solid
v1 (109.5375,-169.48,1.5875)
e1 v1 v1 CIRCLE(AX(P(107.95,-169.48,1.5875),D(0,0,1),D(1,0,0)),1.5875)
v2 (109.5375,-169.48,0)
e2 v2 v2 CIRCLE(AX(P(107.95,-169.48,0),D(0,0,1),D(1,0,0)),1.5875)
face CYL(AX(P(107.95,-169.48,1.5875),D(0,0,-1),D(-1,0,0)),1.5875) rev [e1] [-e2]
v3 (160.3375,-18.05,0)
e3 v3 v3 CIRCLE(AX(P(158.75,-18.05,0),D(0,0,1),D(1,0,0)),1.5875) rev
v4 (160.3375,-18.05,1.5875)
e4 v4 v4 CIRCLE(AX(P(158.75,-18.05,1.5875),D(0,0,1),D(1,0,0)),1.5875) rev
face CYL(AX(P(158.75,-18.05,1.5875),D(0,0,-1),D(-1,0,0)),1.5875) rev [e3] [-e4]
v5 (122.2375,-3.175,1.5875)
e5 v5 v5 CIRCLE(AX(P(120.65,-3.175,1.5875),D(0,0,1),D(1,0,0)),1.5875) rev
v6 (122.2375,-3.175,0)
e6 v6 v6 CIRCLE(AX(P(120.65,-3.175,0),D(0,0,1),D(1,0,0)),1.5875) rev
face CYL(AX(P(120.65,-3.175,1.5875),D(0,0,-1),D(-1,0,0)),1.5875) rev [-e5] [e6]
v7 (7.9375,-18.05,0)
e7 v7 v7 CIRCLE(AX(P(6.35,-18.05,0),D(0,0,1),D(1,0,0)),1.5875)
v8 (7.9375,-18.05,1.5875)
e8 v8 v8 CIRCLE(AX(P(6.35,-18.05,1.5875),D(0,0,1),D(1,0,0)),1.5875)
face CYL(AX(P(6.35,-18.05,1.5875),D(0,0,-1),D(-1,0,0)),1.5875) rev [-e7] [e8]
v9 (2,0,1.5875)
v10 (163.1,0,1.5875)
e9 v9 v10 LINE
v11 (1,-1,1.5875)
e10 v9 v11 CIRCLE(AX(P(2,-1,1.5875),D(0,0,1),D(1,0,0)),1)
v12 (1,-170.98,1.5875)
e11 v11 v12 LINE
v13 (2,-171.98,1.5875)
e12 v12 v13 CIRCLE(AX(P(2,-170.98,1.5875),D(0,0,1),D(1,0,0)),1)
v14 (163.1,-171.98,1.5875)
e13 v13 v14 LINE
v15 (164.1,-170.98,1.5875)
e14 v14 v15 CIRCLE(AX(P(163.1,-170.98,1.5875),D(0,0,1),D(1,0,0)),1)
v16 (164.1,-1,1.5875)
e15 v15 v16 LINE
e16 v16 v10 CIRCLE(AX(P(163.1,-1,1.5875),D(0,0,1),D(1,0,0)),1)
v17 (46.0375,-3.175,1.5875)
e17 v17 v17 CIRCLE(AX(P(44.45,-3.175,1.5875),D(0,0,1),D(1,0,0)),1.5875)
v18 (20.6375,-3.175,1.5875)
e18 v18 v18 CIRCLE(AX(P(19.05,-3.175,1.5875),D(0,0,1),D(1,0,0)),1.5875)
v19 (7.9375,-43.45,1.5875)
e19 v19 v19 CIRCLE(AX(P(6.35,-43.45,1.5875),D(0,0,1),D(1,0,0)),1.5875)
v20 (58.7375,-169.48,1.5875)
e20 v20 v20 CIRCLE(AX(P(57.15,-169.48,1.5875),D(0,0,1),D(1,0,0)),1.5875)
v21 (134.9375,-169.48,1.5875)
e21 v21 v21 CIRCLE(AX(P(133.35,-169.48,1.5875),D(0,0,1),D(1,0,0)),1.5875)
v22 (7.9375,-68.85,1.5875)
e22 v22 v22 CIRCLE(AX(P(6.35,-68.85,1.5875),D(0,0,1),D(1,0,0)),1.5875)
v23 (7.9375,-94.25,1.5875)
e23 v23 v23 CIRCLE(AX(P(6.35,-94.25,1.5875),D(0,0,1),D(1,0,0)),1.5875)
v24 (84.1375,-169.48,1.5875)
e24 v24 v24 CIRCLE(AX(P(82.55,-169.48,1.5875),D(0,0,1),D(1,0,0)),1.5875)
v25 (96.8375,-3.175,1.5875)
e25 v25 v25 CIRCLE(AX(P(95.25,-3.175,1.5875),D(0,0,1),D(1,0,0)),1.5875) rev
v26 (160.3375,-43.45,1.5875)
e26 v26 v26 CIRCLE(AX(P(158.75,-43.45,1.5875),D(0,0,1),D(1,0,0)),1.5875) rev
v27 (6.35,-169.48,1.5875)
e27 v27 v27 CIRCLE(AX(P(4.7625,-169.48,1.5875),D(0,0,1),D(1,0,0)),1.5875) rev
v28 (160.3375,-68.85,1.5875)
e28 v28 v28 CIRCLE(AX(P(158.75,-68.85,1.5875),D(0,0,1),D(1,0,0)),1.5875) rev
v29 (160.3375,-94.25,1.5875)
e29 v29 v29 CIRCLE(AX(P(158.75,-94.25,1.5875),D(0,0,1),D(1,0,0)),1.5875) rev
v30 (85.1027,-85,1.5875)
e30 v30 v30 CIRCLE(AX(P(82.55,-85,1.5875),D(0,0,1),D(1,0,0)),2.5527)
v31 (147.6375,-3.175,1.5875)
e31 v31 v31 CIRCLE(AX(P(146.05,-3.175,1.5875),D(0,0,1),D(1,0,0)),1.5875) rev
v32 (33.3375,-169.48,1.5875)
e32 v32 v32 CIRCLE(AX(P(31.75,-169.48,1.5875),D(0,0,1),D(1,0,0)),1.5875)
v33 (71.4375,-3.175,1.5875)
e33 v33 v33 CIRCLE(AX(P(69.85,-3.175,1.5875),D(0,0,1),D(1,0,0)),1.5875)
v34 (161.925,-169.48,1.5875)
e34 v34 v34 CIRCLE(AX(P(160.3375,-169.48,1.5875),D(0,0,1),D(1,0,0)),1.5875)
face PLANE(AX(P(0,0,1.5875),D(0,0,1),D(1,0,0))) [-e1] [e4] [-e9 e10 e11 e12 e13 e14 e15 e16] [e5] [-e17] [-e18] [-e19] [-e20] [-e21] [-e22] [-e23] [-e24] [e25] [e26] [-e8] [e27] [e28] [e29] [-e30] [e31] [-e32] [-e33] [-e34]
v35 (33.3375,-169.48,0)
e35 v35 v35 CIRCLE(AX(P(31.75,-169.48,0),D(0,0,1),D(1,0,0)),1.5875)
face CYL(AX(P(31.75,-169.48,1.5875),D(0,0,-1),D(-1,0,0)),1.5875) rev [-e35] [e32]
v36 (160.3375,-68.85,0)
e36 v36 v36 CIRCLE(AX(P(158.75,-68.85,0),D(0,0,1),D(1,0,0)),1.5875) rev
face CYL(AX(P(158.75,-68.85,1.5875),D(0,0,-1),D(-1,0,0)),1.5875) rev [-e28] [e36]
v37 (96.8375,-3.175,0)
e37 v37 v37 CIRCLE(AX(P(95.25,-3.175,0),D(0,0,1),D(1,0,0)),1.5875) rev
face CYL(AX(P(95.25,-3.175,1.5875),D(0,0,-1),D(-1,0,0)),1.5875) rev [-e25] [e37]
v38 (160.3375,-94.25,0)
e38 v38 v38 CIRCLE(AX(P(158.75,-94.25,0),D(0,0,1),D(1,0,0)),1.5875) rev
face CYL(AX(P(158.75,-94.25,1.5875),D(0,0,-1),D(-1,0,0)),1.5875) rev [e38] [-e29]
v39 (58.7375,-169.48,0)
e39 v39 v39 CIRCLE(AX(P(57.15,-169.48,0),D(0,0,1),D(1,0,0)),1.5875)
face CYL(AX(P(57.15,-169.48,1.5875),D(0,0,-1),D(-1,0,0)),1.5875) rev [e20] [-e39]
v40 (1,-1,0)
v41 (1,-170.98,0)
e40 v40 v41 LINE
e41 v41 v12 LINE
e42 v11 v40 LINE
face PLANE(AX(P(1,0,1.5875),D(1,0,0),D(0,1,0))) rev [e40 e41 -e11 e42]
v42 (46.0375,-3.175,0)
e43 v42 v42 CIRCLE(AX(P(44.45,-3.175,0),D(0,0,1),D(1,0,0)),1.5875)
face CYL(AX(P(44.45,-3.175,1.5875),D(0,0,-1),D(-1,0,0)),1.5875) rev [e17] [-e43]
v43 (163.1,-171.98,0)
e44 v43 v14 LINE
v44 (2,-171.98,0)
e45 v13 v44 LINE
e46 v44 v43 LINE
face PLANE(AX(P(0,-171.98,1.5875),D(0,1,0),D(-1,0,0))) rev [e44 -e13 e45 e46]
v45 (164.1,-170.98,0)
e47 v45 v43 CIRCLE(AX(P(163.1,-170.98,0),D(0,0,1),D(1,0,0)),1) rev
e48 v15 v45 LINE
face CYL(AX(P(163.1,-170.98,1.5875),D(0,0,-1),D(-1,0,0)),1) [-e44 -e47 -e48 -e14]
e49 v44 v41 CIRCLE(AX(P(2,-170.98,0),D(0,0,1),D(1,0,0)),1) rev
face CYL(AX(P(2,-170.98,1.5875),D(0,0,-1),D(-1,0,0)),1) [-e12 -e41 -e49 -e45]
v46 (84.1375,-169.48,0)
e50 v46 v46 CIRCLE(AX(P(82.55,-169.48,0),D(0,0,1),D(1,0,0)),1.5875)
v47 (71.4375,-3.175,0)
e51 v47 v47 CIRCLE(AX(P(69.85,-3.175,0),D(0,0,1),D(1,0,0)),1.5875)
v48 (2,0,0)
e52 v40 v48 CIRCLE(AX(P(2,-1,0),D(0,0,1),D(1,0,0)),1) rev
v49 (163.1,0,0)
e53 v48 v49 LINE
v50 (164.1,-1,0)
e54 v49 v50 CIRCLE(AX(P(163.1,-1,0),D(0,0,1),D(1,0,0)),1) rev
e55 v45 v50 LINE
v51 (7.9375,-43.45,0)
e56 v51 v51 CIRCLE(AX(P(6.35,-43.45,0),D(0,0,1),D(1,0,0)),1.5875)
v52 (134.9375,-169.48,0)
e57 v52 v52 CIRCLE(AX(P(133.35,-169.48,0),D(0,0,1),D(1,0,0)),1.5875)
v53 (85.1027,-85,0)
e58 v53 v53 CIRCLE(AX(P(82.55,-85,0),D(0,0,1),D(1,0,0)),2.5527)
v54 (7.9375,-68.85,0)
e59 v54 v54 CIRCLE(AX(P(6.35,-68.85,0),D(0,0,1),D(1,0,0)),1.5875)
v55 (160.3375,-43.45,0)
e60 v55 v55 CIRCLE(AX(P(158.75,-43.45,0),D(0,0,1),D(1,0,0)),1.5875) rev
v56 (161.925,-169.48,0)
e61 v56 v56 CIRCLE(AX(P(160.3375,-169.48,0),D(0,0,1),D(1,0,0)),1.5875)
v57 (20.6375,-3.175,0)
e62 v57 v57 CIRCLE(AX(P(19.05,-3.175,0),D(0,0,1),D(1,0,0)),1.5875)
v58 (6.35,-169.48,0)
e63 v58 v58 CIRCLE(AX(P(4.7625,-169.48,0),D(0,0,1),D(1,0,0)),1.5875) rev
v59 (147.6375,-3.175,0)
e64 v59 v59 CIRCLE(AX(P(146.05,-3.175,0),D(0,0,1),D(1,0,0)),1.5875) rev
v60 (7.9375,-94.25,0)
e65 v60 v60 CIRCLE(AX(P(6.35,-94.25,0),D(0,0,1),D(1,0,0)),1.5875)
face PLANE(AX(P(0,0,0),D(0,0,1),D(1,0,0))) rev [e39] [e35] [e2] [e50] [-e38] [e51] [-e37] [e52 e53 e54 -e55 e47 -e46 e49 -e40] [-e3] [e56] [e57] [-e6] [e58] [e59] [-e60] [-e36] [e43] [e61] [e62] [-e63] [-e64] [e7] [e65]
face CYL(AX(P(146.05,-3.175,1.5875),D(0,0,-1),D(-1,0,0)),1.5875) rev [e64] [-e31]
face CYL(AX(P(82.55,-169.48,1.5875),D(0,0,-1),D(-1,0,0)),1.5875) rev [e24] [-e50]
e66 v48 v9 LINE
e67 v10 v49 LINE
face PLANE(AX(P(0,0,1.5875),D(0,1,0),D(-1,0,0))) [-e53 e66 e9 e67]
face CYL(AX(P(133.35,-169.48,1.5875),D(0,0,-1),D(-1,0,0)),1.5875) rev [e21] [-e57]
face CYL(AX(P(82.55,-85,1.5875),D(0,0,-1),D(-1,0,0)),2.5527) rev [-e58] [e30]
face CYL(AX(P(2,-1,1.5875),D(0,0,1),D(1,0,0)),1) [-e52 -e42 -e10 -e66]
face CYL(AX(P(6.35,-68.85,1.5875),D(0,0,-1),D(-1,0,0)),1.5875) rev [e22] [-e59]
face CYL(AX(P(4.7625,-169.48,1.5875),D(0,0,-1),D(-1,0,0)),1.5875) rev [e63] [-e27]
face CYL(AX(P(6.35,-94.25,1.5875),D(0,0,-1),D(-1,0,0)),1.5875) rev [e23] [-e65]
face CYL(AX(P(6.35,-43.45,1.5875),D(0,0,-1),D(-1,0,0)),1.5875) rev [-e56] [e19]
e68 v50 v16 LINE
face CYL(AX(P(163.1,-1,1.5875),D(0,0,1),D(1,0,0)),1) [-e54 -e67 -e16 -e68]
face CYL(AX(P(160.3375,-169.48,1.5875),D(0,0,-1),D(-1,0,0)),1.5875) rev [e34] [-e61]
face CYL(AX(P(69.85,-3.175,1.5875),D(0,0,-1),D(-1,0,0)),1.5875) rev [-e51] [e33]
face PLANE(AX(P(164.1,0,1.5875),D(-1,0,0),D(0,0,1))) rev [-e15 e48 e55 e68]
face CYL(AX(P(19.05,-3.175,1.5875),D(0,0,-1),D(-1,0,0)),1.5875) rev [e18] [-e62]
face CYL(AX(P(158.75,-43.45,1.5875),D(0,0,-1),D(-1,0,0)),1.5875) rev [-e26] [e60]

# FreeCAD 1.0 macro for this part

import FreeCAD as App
import Part
import Sketcher

V = App.Vector
Q = App.Units.Quantity


def edges_at(feature, points):
    """Names of the edges that pass closest to the given points."""
    edges = feature.Shape.Edges
    near = lambda p: min(range(len(edges)), key=lambda i: edges[i].distToShape(Part.Vertex(*p))[0])
    return sorted({f"Edge{near(p) + 1}" for p in points})

doc = App.newDocument("Part")
body = doc.addObject("PartDesign::Body", "Body")

sketch1 = body.newObject("Sketcher::SketchObject", "Sketch")
sketch1.AttachmentSupport = (doc.getObject("XY_Plane"), [""])
sketch1.MapMode = "FlatFace"
sketch1.addGeometry(Part.LineSegment(V(1, 0, 0), V(1, -172, 0)), False)
sketch1.addGeometry(Part.LineSegment(V(1, -172, 0), V(164.1, -172, 0)), False)
sketch1.addGeometry(Part.LineSegment(V(164.1, -172, 0), V(164.1, 0, 0)), False)
sketch1.addGeometry(Part.LineSegment(V(164.1, 0, 0), V(1, 0, 0)), False)
sketch1.addGeometry(Part.Circle(V(4.8, -169.5, 0), V(0, 0, 1), 1.6), False)
sketch1.addGeometry(Part.Circle(V(31.8, -169.5, 0), V(0, 0, 1), 1.6), False)
sketch1.addGeometry(Part.Circle(V(57.1, -169.5, 0), V(0, 0, 1), 1.6), False)
sketch1.addGeometry(Part.Circle(V(6.3, -94.2, 0), V(0, 0, 1), 1.6), False)
sketch1.addGeometry(Part.Circle(V(82.5, -169.5, 0), V(0, 0, 1), 1.6), False)
sketch1.addGeometry(Part.Circle(V(108, -169.5, 0), V(0, 0, 1), 1.6), False)
sketch1.addGeometry(Part.Circle(V(133.3, -169.5, 0), V(0, 0, 1), 1.6), False)
sketch1.addGeometry(Part.Circle(V(160.3, -169.5, 0), V(0, 0, 1), 1.6), False)
sketch1.addGeometry(Part.Circle(V(158.8, -94.2, 0), V(0, 0, 1), 1.6), False)
sketch1.addGeometry(Part.Circle(V(6.3, -68.8, 0), V(0, 0, 1), 1.6), False)
sketch1.addGeometry(Part.Circle(V(6.3, -43.5, 0), V(0, 0, 1), 1.6), False)
sketch1.addGeometry(Part.Circle(V(6.3, -18.1, 0), V(0, 0, 1), 1.6), False)
sketch1.addGeometry(Part.Circle(V(19.1, -3.2, 0), V(0, 0, 1), 1.6), False)
sketch1.addGeometry(Part.Circle(V(44.5, -3.2, 0), V(0, 0, 1), 1.6), False)
sketch1.addGeometry(Part.Circle(V(69.8, -3.2, 0), V(0, 0, 1), 1.6), False)
sketch1.addGeometry(Part.Circle(V(82.5, -85, 0), V(0, 0, 1), 2.6), False)
sketch1.addGeometry(Part.Circle(V(158.8, -68.8, 0), V(0, 0, 1), 1.6), False)
sketch1.addGeometry(Part.Circle(V(95.2, -3.2, 0), V(0, 0, 1), 1.6), False)
sketch1.addGeometry(Part.Circle(V(120.7, -3.2, 0), V(0, 0, 1), 1.6), False)
sketch1.addGeometry(Part.Circle(V(158.8, -43.5, 0), V(0, 0, 1), 1.6), False)
sketch1.addGeometry(Part.Circle(V(158.8, -18.1, 0), V(0, 0, 1), 1.6), False)
sketch1.addGeometry(Part.Circle(V(146.1, -3.2, 0), V(0, 0, 1), 1.6), False)
sketch1.addConstraint(Sketcher.Constraint("Coincident", 0, 2, 1, 1))
sketch1.addConstraint(Sketcher.Constraint("Coincident", 1, 2, 2, 1))
sketch1.addConstraint(Sketcher.Constraint("Coincident", 2, 2, 3, 1))
sketch1.addConstraint(Sketcher.Constraint("Coincident", 3, 2, 0, 1))
sketch1.addConstraint(Sketcher.Constraint("Vertical", 0))
sketch1.addConstraint(Sketcher.Constraint("Horizontal", 1))
sketch1.addConstraint(Sketcher.Constraint("Vertical", 2))
sketch1.addConstraint(Sketcher.Constraint("Horizontal", 3))
sketch1.addConstraint(Sketcher.Constraint("Equal", 4, 5))
sketch1.addConstraint(Sketcher.Constraint("Equal", 5, 6))
sketch1.addConstraint(Sketcher.Constraint("Equal", 6, 7))
sketch1.addConstraint(Sketcher.Constraint("Equal", 7, 8))
sketch1.addConstraint(Sketcher.Constraint("Equal", 8, 9))
sketch1.addConstraint(Sketcher.Constraint("Equal", 9, 10))
sketch1.addConstraint(Sketcher.Constraint("Equal", 10, 11))
sketch1.addConstraint(Sketcher.Constraint("Equal", 11, 12))
sketch1.addConstraint(Sketcher.Constraint("Equal", 12, 13))
sketch1.addConstraint(Sketcher.Constraint("Equal", 13, 14))
sketch1.addConstraint(Sketcher.Constraint("Equal", 14, 15))
sketch1.addConstraint(Sketcher.Constraint("Equal", 15, 16))
sketch1.addConstraint(Sketcher.Constraint("Equal", 16, 17))
sketch1.addConstraint(Sketcher.Constraint("Equal", 17, 18))
sketch1.addConstraint(Sketcher.Constraint("Equal", 18, 20))
sketch1.addConstraint(Sketcher.Constraint("Equal", 20, 21))
sketch1.addConstraint(Sketcher.Constraint("Equal", 21, 22))
sketch1.addConstraint(Sketcher.Constraint("Equal", 22, 23))
sketch1.addConstraint(Sketcher.Constraint("Equal", 23, 24))
sketch1.addConstraint(Sketcher.Constraint("Equal", 24, 25))
sketch1.addConstraint(Sketcher.Constraint("PointOnObject", 2, 2, -1))
sketch1.addConstraint(Sketcher.Constraint("Horizontal", 4, 3, 5, 3))
sketch1.addConstraint(Sketcher.Constraint("Horizontal", 5, 3, 6, 3))
sketch1.addConstraint(Sketcher.Constraint("Horizontal", 6, 3, 8, 3))
sketch1.addConstraint(Sketcher.Constraint("Horizontal", 8, 3, 9, 3))
sketch1.addConstraint(Sketcher.Constraint("Horizontal", 9, 3, 10, 3))
sketch1.addConstraint(Sketcher.Constraint("Horizontal", 10, 3, 11, 3))
sketch1.addConstraint(Sketcher.Constraint("Horizontal", 7, 3, 12, 3))
sketch1.addConstraint(Sketcher.Constraint("Horizontal", 16, 3, 17, 3))
sketch1.addConstraint(Sketcher.Constraint("Horizontal", 17, 3, 18, 3))
sketch1.addConstraint(Sketcher.Constraint("Horizontal", 13, 3, 20, 3))
sketch1.addConstraint(Sketcher.Constraint("Horizontal", 18, 3, 21, 3))
sketch1.addConstraint(Sketcher.Constraint("Horizontal", 21, 3, 22, 3))
sketch1.addConstraint(Sketcher.Constraint("Horizontal", 14, 3, 23, 3))
sketch1.addConstraint(Sketcher.Constraint("Horizontal", 15, 3, 24, 3))
sketch1.addConstraint(Sketcher.Constraint("Horizontal", 22, 3, 25, 3))
sketch1.addConstraint(Sketcher.Constraint("Vertical", 7, 3, 13, 3))
sketch1.addConstraint(Sketcher.Constraint("Vertical", 13, 3, 14, 3))
sketch1.addConstraint(Sketcher.Constraint("Vertical", 14, 3, 15, 3))
sketch1.addConstraint(Sketcher.Constraint("Vertical", 8, 3, 19, 3))
sketch1.addConstraint(Sketcher.Constraint("Vertical", 12, 3, 20, 3))
sketch1.addConstraint(Sketcher.Constraint("Vertical", 20, 3, 23, 3))
sketch1.addConstraint(Sketcher.Constraint("Vertical", 23, 3, 24, 3))
sketch1.addConstraint(Sketcher.Constraint("Diameter", 4, Q("0.125 in")))
sketch1.addConstraint(Sketcher.Constraint("Diameter", 19, Q("0.201 in")))
sketch1.addConstraint(Sketcher.Constraint("DistanceX", 5, 3, 6, 3, Q("1 in")))
sketch1.addConstraint(Sketcher.Constraint("DistanceX", 7, 3, 5, 3, Q("1 in")))
sketch1.addConstraint(Sketcher.Constraint("DistanceX", 6, 3, 8, 3, Q("1 in")))
sketch1.addConstraint(Sketcher.Constraint("DistanceX", 8, 3, 9, 3, Q("1 in")))
sketch1.addConstraint(Sketcher.Constraint("DistanceX", 9, 3, 10, 3, Q("1 in")))
sketch1.addConstraint(Sketcher.Constraint("DistanceX", 10, 3, 12, 3, Q("1 in")))
sketch1.addConstraint(Sketcher.Constraint("DistanceY", 7, 3, 13, 3, Q("1 in")))
sketch1.addConstraint(Sketcher.Constraint("DistanceY", 13, 3, 14, 3, Q("1 in")))
sketch1.addConstraint(Sketcher.Constraint("DistanceY", 14, 3, 15, 3, Q("1 in")))
sketch1.addConstraint(Sketcher.Constraint("DistanceX", 16, 3, 17, 3, Q("1 in")))
sketch1.addConstraint(Sketcher.Constraint("DistanceX", 17, 3, 18, 3, Q("1 in")))
sketch1.addConstraint(Sketcher.Constraint("DistanceX", 18, 3, 21, 3, Q("1 in")))
sketch1.addConstraint(Sketcher.Constraint("DistanceX", 21, 3, 22, 3, Q("1 in")))
sketch1.addConstraint(Sketcher.Constraint("DistanceX", 22, 3, 25, 3, Q("1 in")))
sketch1.addConstraint(Sketcher.Constraint("DistanceX", 15, 3, 16, 3, Q("0.5 in")))
sketch1.addConstraint(Sketcher.Constraint("DistanceX", -1, 1, 5, 3, Q("1.25 in")))
sketch1.addConstraint(Sketcher.Constraint("DistanceX", -1, 1, 4, 3, Q("0.1875 in")))
sketch1.addConstraint(Sketcher.Constraint("DistanceX", -1, 1, 11, 3, Q("6.3125 in")))
sketch1.addConstraint(Sketcher.Constraint("DistanceY", 16, 3, -1, 1, Q("0.125 in")))
sketch1.addConstraint(Sketcher.Constraint("DistanceX", 1, 1, 1, 2, 163.1))
sketch1.addConstraint(Sketcher.Constraint("DistanceY", 0, 2, 0, 1, 171.98))
sketch1.addConstraint(Sketcher.Constraint("DistanceY", 4, 3, -1, 1, 169.48))
sketch1.addConstraint(Sketcher.Constraint("DistanceY", 7, 3, -1, 1, 94.25))
sketch1.addConstraint(Sketcher.Constraint("DistanceY", 19, 3, -1, 1, 85.0))
sketch1.addConstraint(Sketcher.Constraint("DistanceX", -1, 1, 0, 2, 1.0))
pad1 = body.newObject("PartDesign::Pad", "Pad")
pad1.Profile = sketch1
pad1.Length = Q("0.0625 in")
doc.recompute()

fillet = body.newObject("PartDesign::Fillet", "Fillet")
fillet.Base = (pad1, edges_at(pad1, [
    (1, -171.98, 0.794),
    (1, 0, 0.794),
    (164.1, 0, 0.794),
    (164.1, -171.98, 0.794),
]))
fillet.Radius = 1

doc.recompute()
